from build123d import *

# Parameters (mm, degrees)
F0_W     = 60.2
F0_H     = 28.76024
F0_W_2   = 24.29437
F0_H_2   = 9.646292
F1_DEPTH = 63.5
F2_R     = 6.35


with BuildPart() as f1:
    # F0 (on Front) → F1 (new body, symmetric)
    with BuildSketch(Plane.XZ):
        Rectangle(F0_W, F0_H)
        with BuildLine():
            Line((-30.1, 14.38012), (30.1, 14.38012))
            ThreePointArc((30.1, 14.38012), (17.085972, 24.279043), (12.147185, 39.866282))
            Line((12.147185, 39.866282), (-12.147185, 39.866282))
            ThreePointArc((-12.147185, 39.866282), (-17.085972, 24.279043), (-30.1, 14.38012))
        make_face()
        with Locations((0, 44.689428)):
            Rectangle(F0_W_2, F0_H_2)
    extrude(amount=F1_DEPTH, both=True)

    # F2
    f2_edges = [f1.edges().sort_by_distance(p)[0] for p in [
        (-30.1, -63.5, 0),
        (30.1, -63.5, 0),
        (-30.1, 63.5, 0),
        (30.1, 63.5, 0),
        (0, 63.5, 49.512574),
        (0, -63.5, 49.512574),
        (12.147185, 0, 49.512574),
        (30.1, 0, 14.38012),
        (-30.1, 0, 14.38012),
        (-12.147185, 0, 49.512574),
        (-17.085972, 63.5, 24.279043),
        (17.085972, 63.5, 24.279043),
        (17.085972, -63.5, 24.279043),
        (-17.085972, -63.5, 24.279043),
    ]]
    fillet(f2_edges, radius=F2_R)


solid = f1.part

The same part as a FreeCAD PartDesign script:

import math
import FreeCAD as App
import Part
import Sketcher

V = App.Vector


def edges_at(feature, points):
    """Names of the edges that pass closest to the given points."""
    edges = feature.Shape.Edges
    near = lambda p: min(range(len(edges)), key=lambda i: edges[i].distToShape(Part.Vertex(*p))[0])
    return sorted({f"Edge{near(p) + 1}" for p in points})

doc = App.newDocument("Part")
params = doc.addObject("Spreadsheet::Sheet", "Params")
for row, (alias, value) in enumerate([
    ("pad1_length", "5 in"),
    ("fillet_radius", "0.25 in"),
], start=1):
    params.set(f"A{row}", alias)
    params.set(f"B{row}", "=" + value)
    params.setAlias(f"B{row}", alias)

body = doc.addObject("PartDesign::Body", "Body")

# Sketch on XZ plane
sketch1 = doc.addObject("Sketcher::SketchObject", "Sketch")
body.addObject(sketch1)
sketch1.AttachmentSupport = (doc.XZ_Plane, [""])
sketch1.MapMode = "FlatFace"
sketch1.addGeometry(Part.LineSegment(V(-30, 14, 0), V(-30, -14, 0)), False)
sketch1.addGeometry(Part.LineSegment(V(-30, -14, 0), V(30, -14, 0)), False)
sketch1.addGeometry(Part.LineSegment(V(30, -14, 0), V(30, 14, 0)), False)
sketch1.addGeometry(Part.ArcOfCircle(Part.Circle(V(39, 40, 0), V(0, 0, 1), 27), math.radians(180), math.radians(250)), False)
sketch1.addGeometry(Part.LineSegment(V(12, 40, 0), V(12, 50, 0)), False)
sketch1.addGeometry(Part.LineSegment(V(12, 50, 0), V(-12, 50, 0)), False)
sketch1.addGeometry(Part.LineSegment(V(-12, 50, 0), V(-12, 40, 0)), False)
sketch1.addGeometry(Part.ArcOfCircle(Part.Circle(V(-39, 40, 0), V(0, 0, 1), 27), math.radians(-70), math.radians(0)), False)
sketch1.addConstraint(Sketcher.Constraint("Coincident", 0, 2, 1, 1))
sketch1.addConstraint(Sketcher.Constraint("Coincident", 1, 2, 2, 1))
sketch1.addConstraint(Sketcher.Constraint("Coincident", 2, 2, 3, 2))
sketch1.addConstraint(Sketcher.Constraint("Tangent", 3, 1, 4, 1))
sketch1.addConstraint(Sketcher.Constraint("Coincident", 4, 2, 5, 1))
sketch1.addConstraint(Sketcher.Constraint("Coincident", 5, 2, 6, 1))
sketch1.addConstraint(Sketcher.Constraint("Tangent", 6, 2, 7, 2))
sketch1.addConstraint(Sketcher.Constraint("Coincident", 7, 1, 0, 1))
sketch1.addConstraint(Sketcher.Constraint("Vertical", 0))
sketch1.addConstraint(Sketcher.Constraint("Horizontal", 1))
sketch1.addConstraint(Sketcher.Constraint("Vertical", 2))
sketch1.addConstraint(Sketcher.Constraint("Vertical", 4))
sketch1.addConstraint(Sketcher.Constraint("Horizontal", 5))
sketch1.addConstraint(Sketcher.Constraint("Vertical", 6))
sketch1.addConstraint(Sketcher.Constraint("Equal", 3, 7))
sketch1.addConstraint(Sketcher.Constraint("Symmetric", 0, 2, 2, 2, -1, 1))
sketch1.addConstraint(Sketcher.Constraint("Symmetric", 3, 3, 7, 3, -2))
sketch1.addConstraint(Sketcher.Constraint("Radius", 3, 27.066731))
sketch1.addConstraint(Sketcher.Constraint("DistanceX", 1, 1, 1, 2, 60.2))
sketch1.addConstraint(Sketcher.Constraint("DistanceX", 5, 2, 5, 1, 24.29437))
sketch1.addConstraint(Sketcher.Constraint("DistanceY", 0, 2, 0, 1, 28.76024))
sketch1.addConstraint(Sketcher.Constraint("DistanceY", 4, 1, 4, 2, 9.646292))
pad1 = doc.addObject("PartDesign::Pad", "Pad")
body.addObject(pad1)
pad1.Profile = sketch1
pad1.setExpression("Length", "Params.pad1_length")
pad1.Midplane = True
doc.recompute()

fillet = doc.addObject("PartDesign::Fillet", "Fillet")
body.addObject(fillet)
fillet.Base = (pad1, edges_at(pad1, [
    (-30.1, -63.5, 0),
    (30.1, -63.5, 0),
    (-30.1, 63.5, 0),
    (30.1, 63.5, 0),
    (0, 63.5, 49.513),
    (0, -63.5, 49.513),
    (12.147, 0, 49.513),
    (30.1, 0, 14.38),
    (-30.1, 0, 14.38),
    (-12.147, 0, 49.513),
    (-17.086, 63.5, 24.279),
    (17.086, 63.5, 24.279),
    (17.086, -63.5, 24.279),
    (-17.086, -63.5, 24.279),
]))
fillet.setExpression("Radius", "Params.fillet_radius")

doc.recompute()
